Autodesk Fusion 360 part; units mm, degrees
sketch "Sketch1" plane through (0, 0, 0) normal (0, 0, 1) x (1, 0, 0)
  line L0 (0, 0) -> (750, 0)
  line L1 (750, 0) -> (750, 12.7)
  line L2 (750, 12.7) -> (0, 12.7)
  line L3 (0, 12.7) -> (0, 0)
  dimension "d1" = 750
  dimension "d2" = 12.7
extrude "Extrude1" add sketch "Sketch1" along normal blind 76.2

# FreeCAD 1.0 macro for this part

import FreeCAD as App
import Part
import Sketcher

V = App.Vector
Q = App.Units.Quantity


def add_polygon(sketch, points):
    """Adds a closed chain of lines whose ends are joined by coincident constraints."""
    first, n = sketch.GeometryCount, len(points)
    for a, b in zip(points, points[1:] + points[:1]):
        sketch.addGeometry(Part.LineSegment(App.Vector(*a, 0), App.Vector(*b, 0)), False)
    for i in range(n):
        sketch.addConstraint(Sketcher.Constraint("Coincident", first + i, 2, first + (i + 1) % n, 1))

doc = App.newDocument("Part")
body = doc.addObject("PartDesign::Body", "Body")

sketch1 = body.newObject("Sketcher::SketchObject", "Sketch")
sketch1.AttachmentSupport = (doc.getObject("XY_Plane"), [""])
sketch1.MapMode = "FlatFace"
add_polygon(sketch1, [(0, 13), (0, 0), (750, 0), (750, 13)])
sketch1.addConstraint(Sketcher.Constraint("Vertical", 0))
sketch1.addConstraint(Sketcher.Constraint("Horizontal", 1))
sketch1.addConstraint(Sketcher.Constraint("Vertical", 2))
sketch1.addConstraint(Sketcher.Constraint("Horizontal", 3))
sketch1.addConstraint(Sketcher.Constraint("Coincident", 0, 2, -1, 1))
sketch1.addConstraint(Sketcher.Constraint("DistanceY", 0, 2, 0, 1, Q("0.5 in")))
sketch1.addConstraint(Sketcher.Constraint("DistanceX", 1, 1, 1, 2, Q("750 mm")))
pad1 = body.newObject("PartDesign::Pad", "Pad")
pad1.Profile = sketch1
pad1.Length = Q("3 in")

doc.recompute()
